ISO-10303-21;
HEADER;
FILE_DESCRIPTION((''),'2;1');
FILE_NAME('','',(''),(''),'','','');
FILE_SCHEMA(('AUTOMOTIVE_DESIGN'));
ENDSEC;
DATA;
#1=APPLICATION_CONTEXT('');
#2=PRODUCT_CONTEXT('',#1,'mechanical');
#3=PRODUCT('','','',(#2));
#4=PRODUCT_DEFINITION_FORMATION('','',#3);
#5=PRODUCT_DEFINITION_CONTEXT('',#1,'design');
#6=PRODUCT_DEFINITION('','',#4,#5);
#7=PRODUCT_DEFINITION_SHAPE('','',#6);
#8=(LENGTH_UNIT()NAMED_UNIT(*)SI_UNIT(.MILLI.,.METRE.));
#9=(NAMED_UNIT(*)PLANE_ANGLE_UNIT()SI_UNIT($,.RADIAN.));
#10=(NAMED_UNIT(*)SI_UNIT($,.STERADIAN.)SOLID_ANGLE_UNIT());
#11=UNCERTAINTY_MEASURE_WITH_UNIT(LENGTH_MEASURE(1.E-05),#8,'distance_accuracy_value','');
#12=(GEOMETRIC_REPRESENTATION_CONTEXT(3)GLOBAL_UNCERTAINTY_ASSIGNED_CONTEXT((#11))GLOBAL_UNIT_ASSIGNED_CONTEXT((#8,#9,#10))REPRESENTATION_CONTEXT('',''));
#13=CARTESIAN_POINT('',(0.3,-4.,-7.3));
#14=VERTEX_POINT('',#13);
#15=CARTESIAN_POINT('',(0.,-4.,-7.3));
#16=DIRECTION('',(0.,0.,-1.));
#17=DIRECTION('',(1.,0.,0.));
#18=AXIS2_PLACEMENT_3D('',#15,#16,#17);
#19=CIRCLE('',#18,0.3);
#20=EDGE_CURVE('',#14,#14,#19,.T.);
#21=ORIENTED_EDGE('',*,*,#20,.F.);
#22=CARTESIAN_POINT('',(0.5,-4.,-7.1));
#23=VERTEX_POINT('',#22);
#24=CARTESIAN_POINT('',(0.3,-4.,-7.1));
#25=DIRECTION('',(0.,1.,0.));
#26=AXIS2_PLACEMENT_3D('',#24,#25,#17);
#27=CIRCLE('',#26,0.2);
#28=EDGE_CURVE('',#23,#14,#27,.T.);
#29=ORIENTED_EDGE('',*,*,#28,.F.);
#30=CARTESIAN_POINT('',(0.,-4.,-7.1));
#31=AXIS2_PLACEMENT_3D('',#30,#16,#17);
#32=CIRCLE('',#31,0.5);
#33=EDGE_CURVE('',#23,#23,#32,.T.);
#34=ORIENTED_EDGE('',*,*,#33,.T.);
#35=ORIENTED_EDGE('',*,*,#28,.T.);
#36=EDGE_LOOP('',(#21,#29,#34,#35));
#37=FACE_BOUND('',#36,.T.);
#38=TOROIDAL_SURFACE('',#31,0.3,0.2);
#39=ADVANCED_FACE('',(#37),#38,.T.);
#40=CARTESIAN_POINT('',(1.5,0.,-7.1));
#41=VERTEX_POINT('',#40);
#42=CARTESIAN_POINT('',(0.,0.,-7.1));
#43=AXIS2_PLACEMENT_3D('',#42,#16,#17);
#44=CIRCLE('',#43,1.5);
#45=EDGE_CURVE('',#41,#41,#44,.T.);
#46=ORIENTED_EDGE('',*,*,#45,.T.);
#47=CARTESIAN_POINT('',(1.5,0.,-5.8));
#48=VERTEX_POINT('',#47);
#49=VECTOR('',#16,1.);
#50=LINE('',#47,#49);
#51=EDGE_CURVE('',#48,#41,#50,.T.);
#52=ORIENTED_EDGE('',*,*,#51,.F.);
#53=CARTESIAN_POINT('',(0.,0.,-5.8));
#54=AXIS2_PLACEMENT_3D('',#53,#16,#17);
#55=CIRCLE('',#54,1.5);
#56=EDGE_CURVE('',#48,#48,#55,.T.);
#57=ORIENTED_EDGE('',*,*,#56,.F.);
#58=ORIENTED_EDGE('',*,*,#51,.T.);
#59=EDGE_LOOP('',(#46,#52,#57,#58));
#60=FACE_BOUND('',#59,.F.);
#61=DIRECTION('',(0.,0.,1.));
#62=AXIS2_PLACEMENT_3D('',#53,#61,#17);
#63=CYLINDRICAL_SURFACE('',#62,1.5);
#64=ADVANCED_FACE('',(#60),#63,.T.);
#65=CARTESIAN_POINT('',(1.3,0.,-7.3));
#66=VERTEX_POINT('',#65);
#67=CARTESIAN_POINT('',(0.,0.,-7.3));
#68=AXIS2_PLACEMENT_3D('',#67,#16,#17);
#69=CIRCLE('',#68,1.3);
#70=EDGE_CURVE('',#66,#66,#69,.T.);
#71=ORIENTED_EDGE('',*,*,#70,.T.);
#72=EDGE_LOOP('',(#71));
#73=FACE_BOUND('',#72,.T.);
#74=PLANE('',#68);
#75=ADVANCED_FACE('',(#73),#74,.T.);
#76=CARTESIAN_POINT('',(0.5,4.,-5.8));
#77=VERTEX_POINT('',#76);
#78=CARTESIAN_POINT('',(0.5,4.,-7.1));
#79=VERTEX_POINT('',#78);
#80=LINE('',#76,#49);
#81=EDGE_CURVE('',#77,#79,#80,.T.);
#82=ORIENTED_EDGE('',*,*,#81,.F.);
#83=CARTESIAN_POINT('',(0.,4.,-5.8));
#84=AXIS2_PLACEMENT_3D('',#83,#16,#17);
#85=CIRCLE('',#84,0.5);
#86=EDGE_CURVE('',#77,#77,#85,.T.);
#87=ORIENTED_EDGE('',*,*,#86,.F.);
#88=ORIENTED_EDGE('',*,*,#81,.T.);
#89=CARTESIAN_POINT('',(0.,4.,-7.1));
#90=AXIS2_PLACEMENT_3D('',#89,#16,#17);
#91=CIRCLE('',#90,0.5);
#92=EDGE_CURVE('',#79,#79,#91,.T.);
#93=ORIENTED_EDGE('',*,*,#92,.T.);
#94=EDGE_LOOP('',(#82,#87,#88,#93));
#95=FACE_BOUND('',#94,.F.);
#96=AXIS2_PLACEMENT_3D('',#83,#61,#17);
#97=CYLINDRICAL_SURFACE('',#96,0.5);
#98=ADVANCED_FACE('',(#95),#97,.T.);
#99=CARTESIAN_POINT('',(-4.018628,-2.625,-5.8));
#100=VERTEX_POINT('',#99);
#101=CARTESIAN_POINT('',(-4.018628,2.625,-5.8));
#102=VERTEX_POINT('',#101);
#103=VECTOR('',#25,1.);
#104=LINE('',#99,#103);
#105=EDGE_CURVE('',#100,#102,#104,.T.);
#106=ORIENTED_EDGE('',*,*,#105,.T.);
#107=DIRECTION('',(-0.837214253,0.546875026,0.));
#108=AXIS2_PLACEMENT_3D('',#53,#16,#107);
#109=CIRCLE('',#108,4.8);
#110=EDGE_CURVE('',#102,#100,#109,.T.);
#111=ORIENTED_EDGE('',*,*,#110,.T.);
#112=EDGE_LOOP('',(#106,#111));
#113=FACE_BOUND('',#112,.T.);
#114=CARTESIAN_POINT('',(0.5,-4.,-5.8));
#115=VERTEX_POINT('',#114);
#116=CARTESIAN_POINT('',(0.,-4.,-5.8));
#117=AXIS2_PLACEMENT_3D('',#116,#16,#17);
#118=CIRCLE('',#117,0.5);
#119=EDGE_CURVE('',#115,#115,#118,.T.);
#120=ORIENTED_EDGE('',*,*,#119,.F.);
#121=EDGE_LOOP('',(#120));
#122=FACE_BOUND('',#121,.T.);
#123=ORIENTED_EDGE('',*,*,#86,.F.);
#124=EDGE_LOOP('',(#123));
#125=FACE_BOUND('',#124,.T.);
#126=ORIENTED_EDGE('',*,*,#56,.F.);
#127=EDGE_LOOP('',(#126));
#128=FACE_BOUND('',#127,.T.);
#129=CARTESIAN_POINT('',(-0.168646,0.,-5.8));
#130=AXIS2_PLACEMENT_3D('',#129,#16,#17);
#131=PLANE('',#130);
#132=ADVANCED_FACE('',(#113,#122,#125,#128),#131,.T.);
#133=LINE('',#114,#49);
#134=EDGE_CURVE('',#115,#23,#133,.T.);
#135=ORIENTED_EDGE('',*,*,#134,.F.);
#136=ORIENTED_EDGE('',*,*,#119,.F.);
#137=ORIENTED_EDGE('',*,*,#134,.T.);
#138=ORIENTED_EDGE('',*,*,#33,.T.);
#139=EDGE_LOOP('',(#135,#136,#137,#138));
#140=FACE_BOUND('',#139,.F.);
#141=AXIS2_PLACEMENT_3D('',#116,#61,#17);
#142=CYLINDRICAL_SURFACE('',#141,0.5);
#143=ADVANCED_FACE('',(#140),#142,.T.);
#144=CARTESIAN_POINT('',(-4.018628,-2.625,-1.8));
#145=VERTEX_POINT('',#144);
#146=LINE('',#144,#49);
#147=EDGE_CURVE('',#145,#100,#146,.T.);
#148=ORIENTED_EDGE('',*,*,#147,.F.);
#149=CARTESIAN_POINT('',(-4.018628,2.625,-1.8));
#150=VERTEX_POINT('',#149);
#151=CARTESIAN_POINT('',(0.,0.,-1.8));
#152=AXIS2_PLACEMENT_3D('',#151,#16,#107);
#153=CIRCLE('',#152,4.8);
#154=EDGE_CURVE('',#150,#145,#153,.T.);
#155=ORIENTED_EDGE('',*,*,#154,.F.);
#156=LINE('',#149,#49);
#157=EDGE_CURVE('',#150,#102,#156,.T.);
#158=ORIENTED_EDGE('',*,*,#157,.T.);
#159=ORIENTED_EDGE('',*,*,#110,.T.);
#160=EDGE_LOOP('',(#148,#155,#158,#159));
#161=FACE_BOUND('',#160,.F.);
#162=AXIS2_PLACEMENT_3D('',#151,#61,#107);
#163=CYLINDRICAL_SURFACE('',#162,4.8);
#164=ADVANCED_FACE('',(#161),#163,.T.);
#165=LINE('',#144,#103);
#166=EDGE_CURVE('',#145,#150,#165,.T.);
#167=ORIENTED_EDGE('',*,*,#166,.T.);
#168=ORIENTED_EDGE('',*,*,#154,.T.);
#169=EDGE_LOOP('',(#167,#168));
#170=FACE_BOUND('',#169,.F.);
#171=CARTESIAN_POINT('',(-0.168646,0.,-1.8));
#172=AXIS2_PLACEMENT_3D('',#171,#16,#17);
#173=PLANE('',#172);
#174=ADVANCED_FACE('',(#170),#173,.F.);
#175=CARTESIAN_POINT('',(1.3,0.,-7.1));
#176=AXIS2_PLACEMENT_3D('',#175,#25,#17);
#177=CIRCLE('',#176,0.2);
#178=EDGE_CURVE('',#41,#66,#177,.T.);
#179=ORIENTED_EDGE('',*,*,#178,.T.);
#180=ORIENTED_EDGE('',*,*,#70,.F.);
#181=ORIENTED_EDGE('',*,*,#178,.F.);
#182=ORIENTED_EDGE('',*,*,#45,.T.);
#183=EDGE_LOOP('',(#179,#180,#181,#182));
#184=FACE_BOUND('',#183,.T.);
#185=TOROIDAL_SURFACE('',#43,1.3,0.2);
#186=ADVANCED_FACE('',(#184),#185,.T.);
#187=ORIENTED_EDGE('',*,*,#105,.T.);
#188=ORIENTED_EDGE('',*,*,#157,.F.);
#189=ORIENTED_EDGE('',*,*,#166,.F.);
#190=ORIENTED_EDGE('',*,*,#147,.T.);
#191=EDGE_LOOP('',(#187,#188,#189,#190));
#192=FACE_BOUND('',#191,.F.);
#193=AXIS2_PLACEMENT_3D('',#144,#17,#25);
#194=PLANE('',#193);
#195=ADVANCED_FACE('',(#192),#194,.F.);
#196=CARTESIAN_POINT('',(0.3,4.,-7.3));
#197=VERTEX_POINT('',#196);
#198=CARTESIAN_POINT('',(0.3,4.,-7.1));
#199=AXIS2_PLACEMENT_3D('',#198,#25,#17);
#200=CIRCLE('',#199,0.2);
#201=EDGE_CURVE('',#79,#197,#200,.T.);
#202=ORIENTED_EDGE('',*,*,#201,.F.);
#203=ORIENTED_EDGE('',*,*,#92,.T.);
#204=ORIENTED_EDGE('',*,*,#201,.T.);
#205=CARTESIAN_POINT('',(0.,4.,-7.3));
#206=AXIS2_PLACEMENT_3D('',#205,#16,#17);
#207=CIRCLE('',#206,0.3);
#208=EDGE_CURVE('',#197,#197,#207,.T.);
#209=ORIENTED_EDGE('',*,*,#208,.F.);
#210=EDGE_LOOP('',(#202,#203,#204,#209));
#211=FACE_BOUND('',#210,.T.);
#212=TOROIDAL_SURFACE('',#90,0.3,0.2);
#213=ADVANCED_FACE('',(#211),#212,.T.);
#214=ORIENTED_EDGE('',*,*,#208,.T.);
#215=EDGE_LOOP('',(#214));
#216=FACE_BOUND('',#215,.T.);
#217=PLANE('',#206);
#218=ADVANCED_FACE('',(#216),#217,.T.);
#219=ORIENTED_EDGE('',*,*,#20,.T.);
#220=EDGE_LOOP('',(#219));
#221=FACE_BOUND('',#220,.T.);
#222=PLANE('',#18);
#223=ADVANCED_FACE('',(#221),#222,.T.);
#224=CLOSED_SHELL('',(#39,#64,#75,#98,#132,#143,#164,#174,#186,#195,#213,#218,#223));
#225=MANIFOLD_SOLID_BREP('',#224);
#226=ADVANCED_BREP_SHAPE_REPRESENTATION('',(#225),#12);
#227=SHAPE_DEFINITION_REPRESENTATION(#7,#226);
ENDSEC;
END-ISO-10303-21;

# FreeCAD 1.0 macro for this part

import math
import FreeCAD as App
import Part
import Sketcher

V = App.Vector


def edges_at(feature, points):
    """Names of the edges that pass closest to the given points."""
    edges = feature.Shape.Edges
    near = lambda p: min(range(len(edges)), key=lambda i: edges[i].distToShape(Part.Vertex(*p))[0])
    return sorted({f"Edge{near(p) + 1}" for p in points})

doc = App.newDocument("Part")
body = doc.addObject("PartDesign::Body", "Body")

# Sketch on XY plane
sketch1 = doc.addObject("Sketcher::SketchObject", "Sketch")
body.addObject(sketch1)
sketch1.AttachmentSupport = (doc.XY_Plane, [""])
sketch1.MapMode = "FlatFace"
sketch1.AttachmentOffset = App.Placement(V(0, 0, -1.8), App.Rotation())
sketch1.addGeometry([
    Part.ArcOfCircle(Part.Circle(V(0, 0, 0), V(0, 0, 1), 4.8), math.radians(-147), math.radians(147)),
    Part.LineSegment(V(-4, -2.6, 0), V(-4, 2.6, 0)),
], False)
sketch1.addConstraint([
    Sketcher.Constraint("Coincident", 0, 1, 1, 1),
    Sketcher.Constraint("Coincident", 1, 2, 0, 2),
    Sketcher.Constraint("Vertical", 1),
    Sketcher.Constraint("Coincident", 0, 3, -1, 1),
    Sketcher.Constraint("Radius", 0, 4.8),
    Sketcher.Constraint("DistanceY", 1, 1, 1, 2, 5.25),
])
pad1 = doc.addObject("PartDesign::Pad", "Pad")
body.addObject(pad1)
pad1.Profile = sketch1
pad1.Length = 4
pad1.Reversed = True

# Sketch on XY plane
sketch2 = doc.addObject("Sketcher::SketchObject", "Sketch001")
body.addObject(sketch2)
sketch2.AttachmentSupport = (doc.XY_Plane, [""])
sketch2.MapMode = "FlatFace"
sketch2.AttachmentOffset = App.Placement(V(0, 0, -5.8), App.Rotation())
sketch2.addGeometry([
    Part.Circle(V(0, 0, 0), V(0, 0, 1), 1.5),
    Part.Circle(V(0, -4, 0), V(0, 0, 1), 0.5),
    Part.Circle(V(0, 4, 0), V(0, 0, 1), 0.5),
], False)
sketch2.addConstraint([
    Sketcher.Constraint("Coincident", 0, 3, -1, 1),
    Sketcher.Constraint("Equal", 1, 2),
    Sketcher.Constraint("Symmetric", 1, 3, 2, 3, -1, 1),
    Sketcher.Constraint("PointOnObject", 1, 3, -2),
    Sketcher.Constraint("Diameter", 0, 3.0),
    Sketcher.Constraint("Diameter", 1, 1.0),
    Sketcher.Constraint("DistanceY", 1, 3, -1, 1, 4.0),
])
pad2 = doc.addObject("PartDesign::Pad", "Pad001")
body.addObject(pad2)
pad2.Profile = sketch2
pad2.Length = 1.5
pad2.Reversed = True
doc.recompute()

fillet = doc.addObject("PartDesign::Fillet", "Fillet")
body.addObject(fillet)
fillet.Base = (pad2, edges_at(pad2, [(-0.5, -4, -7.3), (-0.5, 4, -7.3), (-1.5, 0, -7.3)]))
fillet.Radius = 0.2

doc.recompute()
